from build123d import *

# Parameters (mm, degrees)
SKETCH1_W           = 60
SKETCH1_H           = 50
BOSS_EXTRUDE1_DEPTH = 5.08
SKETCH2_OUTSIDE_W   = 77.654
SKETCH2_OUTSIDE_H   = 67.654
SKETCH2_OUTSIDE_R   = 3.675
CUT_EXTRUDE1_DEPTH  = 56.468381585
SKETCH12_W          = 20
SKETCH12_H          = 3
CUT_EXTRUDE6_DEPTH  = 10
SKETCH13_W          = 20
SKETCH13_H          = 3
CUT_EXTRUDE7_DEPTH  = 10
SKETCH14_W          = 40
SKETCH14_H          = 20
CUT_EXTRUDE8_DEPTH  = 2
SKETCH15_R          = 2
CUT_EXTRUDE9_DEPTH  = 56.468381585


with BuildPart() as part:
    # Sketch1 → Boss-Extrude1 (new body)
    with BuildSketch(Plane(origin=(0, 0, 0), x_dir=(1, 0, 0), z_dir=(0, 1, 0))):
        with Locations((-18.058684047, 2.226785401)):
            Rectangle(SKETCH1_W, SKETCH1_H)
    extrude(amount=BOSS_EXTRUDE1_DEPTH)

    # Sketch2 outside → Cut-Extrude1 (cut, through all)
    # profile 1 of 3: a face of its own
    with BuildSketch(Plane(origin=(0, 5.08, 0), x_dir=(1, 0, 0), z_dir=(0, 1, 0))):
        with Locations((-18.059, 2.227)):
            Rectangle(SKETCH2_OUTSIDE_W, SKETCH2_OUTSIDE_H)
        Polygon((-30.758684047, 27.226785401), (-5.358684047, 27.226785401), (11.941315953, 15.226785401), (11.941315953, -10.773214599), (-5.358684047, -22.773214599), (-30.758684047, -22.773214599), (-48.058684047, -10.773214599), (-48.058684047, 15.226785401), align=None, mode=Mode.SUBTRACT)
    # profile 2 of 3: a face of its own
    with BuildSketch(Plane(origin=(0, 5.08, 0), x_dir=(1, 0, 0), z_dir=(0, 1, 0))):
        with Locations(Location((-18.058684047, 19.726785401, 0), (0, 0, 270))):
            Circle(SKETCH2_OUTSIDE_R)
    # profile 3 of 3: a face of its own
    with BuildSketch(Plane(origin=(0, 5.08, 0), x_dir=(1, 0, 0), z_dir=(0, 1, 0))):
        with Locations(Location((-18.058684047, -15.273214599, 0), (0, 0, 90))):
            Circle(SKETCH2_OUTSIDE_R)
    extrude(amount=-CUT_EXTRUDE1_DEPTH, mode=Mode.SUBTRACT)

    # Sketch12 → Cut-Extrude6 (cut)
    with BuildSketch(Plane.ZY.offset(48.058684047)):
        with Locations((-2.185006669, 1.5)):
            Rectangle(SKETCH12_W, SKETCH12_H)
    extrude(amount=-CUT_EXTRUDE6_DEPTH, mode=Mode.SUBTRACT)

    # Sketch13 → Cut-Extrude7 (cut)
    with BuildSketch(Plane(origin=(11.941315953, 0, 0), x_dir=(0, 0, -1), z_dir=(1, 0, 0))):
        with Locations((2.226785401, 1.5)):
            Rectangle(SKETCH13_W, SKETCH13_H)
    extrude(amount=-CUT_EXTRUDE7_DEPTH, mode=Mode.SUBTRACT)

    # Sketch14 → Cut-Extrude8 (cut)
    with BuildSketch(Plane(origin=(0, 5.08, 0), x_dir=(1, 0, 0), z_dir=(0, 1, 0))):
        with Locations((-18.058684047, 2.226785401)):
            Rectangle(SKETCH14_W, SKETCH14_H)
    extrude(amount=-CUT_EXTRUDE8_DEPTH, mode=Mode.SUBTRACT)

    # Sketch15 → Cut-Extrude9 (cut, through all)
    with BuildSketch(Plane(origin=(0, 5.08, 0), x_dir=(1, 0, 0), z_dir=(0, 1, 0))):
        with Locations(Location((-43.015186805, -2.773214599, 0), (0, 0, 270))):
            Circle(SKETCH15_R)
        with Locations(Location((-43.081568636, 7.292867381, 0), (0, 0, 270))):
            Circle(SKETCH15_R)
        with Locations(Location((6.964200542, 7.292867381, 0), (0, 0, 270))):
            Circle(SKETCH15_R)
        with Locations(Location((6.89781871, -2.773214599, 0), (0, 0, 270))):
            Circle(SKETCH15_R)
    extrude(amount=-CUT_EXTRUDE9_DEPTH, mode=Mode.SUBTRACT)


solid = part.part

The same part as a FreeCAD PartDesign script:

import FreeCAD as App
import Part
import Sketcher

doc = App.newDocument("Part")
body = doc.addObject("PartDesign::Body", "Body")

# Sketch on XZ plane
sketch1 = body.newObject("Sketcher::SketchObject", "Sketch")
sketch1.AttachmentSupport = (doc.getObject("XZ_Plane"), [""])
sketch1.MapMode = "FlatFace"
sketch1.addGeometry([
    Part.LineSegment(App.Vector(-48, -27, 0), App.Vector(-48, 23, 0)),
    Part.LineSegment(App.Vector(-48, 23, 0), App.Vector(12, 23, 0)),
    Part.LineSegment(App.Vector(12, 23, 0), App.Vector(12, -27, 0)),
    Part.LineSegment(App.Vector(12, -27, 0), App.Vector(-48, -27, 0)),
], False)
sketch1.addConstraint([
    Sketcher.Constraint("Coincident", 0, 2, 1, 1),
    Sketcher.Constraint("Coincident", 1, 2, 2, 1),
    Sketcher.Constraint("Coincident", 2, 2, 3, 1),
    Sketcher.Constraint("Coincident", 3, 2, 0, 1),
    Sketcher.Constraint("Vertical", 0),
    Sketcher.Constraint("Horizontal", 1),
    Sketcher.Constraint("Vertical", 2),
    Sketcher.Constraint("Horizontal", 3),
    Sketcher.Constraint("DistanceX", 1, 1, 1, 2, 60.0),
    Sketcher.Constraint("DistanceY", 0, 1, 0, 2, 50.0),
    Sketcher.Constraint("DistanceX", 0, 2, -1, 1, 48.058684),
    Sketcher.Constraint("DistanceY", -1, 1, 0, 2, 22.773215),
])
pad1 = body.newObject("PartDesign::Pad", "Pad")
pad1.Profile = sketch1
pad1.Length = 5.08
pad1.Reversed = True

# Sketch on XZ plane
sketch2 = body.newObject("Sketcher::SketchObject", "Sketch001")
sketch2.AttachmentSupport = (doc.getObject("XZ_Plane"), [""])
sketch2.MapMode = "FlatFace"
sketch2.AttachmentOffset = App.Placement(App.Vector(0, 0, -5.08), App.Rotation())
sketch2.addGeometry([
    Part.LineSegment(App.Vector(-56.9, -36.1, 0), App.Vector(-56.9, 31.6, 0)),  # 0
    Part.LineSegment(App.Vector(-56.9, 31.6, 0), App.Vector(20.8, 31.6, 0)),  # 1
    Part.LineSegment(App.Vector(20.8, 31.6, 0), App.Vector(20.8, -36.1, 0)),  # 2
    Part.LineSegment(App.Vector(20.8, -36.1, 0), App.Vector(-56.9, -36.1, 0)),  # 3
    Part.LineSegment(App.Vector(-48.1, -15.2, 0), App.Vector(-30.8, -27.2, 0)),  # 4
    Part.LineSegment(App.Vector(-30.8, -27.2, 0), App.Vector(-5.4, -27.2, 0)),  # 5
    Part.LineSegment(App.Vector(-5.4, -27.2, 0), App.Vector(11.9, -15.2, 0)),  # 6
    Part.LineSegment(App.Vector(11.9, -15.2, 0), App.Vector(11.9, 10.8, 0)),  # 7
    Part.LineSegment(App.Vector(11.9, 10.8, 0), App.Vector(-5.4, 22.8, 0)),  # 8
    Part.LineSegment(App.Vector(-5.4, 22.8, 0), App.Vector(-30.8, 22.8, 0)),  # 9
    Part.LineSegment(App.Vector(-30.8, 22.8, 0), App.Vector(-48.1, 10.8, 0)),  # 10
    Part.LineSegment(App.Vector(-48.1, 10.8, 0), App.Vector(-48.1, -15.2, 0)),  # 11
    Part.Circle(App.Vector(-18.1, -19.7, 0), App.Vector(0, 0, 1), 3.7),  # 12
    Part.Circle(App.Vector(-18.1, 15.3, 0), App.Vector(0, 0, 1), 3.7),  # 13
], False)
sketch2.addConstraint([
    Sketcher.Constraint("Coincident", 0, 2, 1, 1),
    Sketcher.Constraint("Coincident", 1, 2, 2, 1),
    Sketcher.Constraint("Coincident", 2, 2, 3, 1),
    Sketcher.Constraint("Coincident", 3, 2, 0, 1),
    Sketcher.Constraint("Coincident", 4, 2, 5, 1),
    Sketcher.Constraint("Coincident", 5, 2, 6, 1),
    Sketcher.Constraint("Coincident", 6, 2, 7, 1),
    Sketcher.Constraint("Coincident", 7, 2, 8, 1),
    Sketcher.Constraint("Coincident", 8, 2, 9, 1),
    Sketcher.Constraint("Coincident", 9, 2, 10, 1),
    Sketcher.Constraint("Coincident", 10, 2, 11, 1),
    Sketcher.Constraint("Coincident", 11, 2, 4, 1),
    Sketcher.Constraint("Vertical", 0),
    Sketcher.Constraint("Horizontal", 1),
    Sketcher.Constraint("Vertical", 2),
    Sketcher.Constraint("Horizontal", 3),
    Sketcher.Constraint("Horizontal", 5),
    Sketcher.Constraint("Vertical", 7),
    Sketcher.Constraint("Horizontal", 9),
    Sketcher.Constraint("Vertical", 11),
    Sketcher.Constraint("Equal", 12, 13),
    Sketcher.Constraint("Parallel", 4, 8),
    Sketcher.Constraint("Parallel", 6, 10),
    Sketcher.Constraint("Horizontal", 7, 2, 10, 2),
    Sketcher.Constraint("Horizontal", 6, 2, 11, 2),
    Sketcher.Constraint("Vertical", 12, 3, 13, 3),
    Sketcher.Constraint("Vertical", 5, 2, 8, 2),
    Sketcher.Constraint("Vertical", 4, 2, 9, 2),
    Sketcher.Constraint("Diameter", 12, 7.35),
    Sketcher.Constraint("DistanceY", 7, 1, 7, 2, 26.0),
    Sketcher.Constraint("DistanceX", 5, 1, 5, 2, 25.4),
    Sketcher.Constraint("DistanceY", 12, 3, 13, 3, 35.0),
    Sketcher.Constraint("DistanceY", 5, 2, 6, 2, 12.0),
    Sketcher.Constraint("DistanceX", 12, 3, 6, 2, 30.0),
    Sketcher.Constraint("DistanceX", 10, 2, 13, 3, 30.0),
    Sketcher.Constraint("DistanceY", -1, 1, 0, 2, 31.6),
    Sketcher.Constraint("DistanceY", 4, 2, 12, 3, 7.5),
    Sketcher.Constraint("DistanceX", 1, 1, 1, 2, 77.654),
    Sketcher.Constraint("DistanceY", 0, 1, 0, 2, 67.654),
    Sketcher.Constraint("DistanceX", 0, 2, -1, 1, 56.886),
    Sketcher.Constraint("DistanceX", 12, 3, -1, 1, 18.058684),
    Sketcher.Constraint("DistanceY", 12, 3, -1, 1, 19.726785),
])
pocket1 = body.newObject("PartDesign::Pocket", "Pocket")
pocket1.Profile = sketch2
pocket1.Length = 56.468382
pocket1.Reversed = True

# Sketch on YZ plane
sketch3 = body.newObject("Sketcher::SketchObject", "Sketch002")
sketch3.AttachmentSupport = (doc.getObject("YZ_Plane"), [""])
sketch3.MapMode = "FlatFace"
sketch3.AttachmentOffset = App.Placement(App.Vector(0, 0, -48.058684), App.Rotation())
sketch3.addGeometry([
    Part.LineSegment(App.Vector(3, -12.2, 0), App.Vector(0, -12.2, 0)),
    Part.LineSegment(App.Vector(0, -12.2, 0), App.Vector(0, 7.8, 0)),
    Part.LineSegment(App.Vector(0, 7.8, 0), App.Vector(3, 7.8, 0)),
    Part.LineSegment(App.Vector(3, 7.8, 0), App.Vector(3, -12.2, 0)),
], False)
sketch3.addConstraint([
    Sketcher.Constraint("Coincident", 0, 2, 1, 1),
    Sketcher.Constraint("Coincident", 1, 2, 2, 1),
    Sketcher.Constraint("Coincident", 2, 2, 3, 1),
    Sketcher.Constraint("Coincident", 3, 2, 0, 1),
    Sketcher.Constraint("Horizontal", 0),
    Sketcher.Constraint("Vertical", 1),
    Sketcher.Constraint("Horizontal", 2),
    Sketcher.Constraint("Vertical", 3),
    Sketcher.Constraint("PointOnObject", 0, 2, -2),
    Sketcher.Constraint("DistanceX", 0, 2, 0, 1, 3.0),
    Sketcher.Constraint("DistanceY", 1, 1, 1, 2, 20.0),
    Sketcher.Constraint("DistanceY", 0, 2, -1, 1, 12.185007),
])
pocket2 = body.newObject("PartDesign::Pocket", "Pocket001")
pocket2.Profile = sketch3
pocket2.Length = 10
pocket2.Reversed = True

# Sketch on YZ plane
sketch4 = body.newObject("Sketcher::SketchObject", "Sketch003")
sketch4.AttachmentSupport = (doc.getObject("YZ_Plane"), [""])
sketch4.MapMode = "FlatFace"
sketch4.AttachmentOffset = App.Placement(App.Vector(0, 0, 11.941316), App.Rotation())
sketch4.addGeometry([
    Part.LineSegment(App.Vector(3, 7.8, 0), App.Vector(0, 7.8, 0)),
    Part.LineSegment(App.Vector(0, 7.8, 0), App.Vector(0, -12.2, 0)),
    Part.LineSegment(App.Vector(0, -12.2, 0), App.Vector(3, -12.2, 0)),
    Part.LineSegment(App.Vector(3, -12.2, 0), App.Vector(3, 7.8, 0)),
], False)
sketch4.addConstraint([
    Sketcher.Constraint("Coincident", 0, 2, 1, 1),
    Sketcher.Constraint("Coincident", 1, 2, 2, 1),
    Sketcher.Constraint("Coincident", 2, 2, 3, 1),
    Sketcher.Constraint("Coincident", 3, 2, 0, 1),
    Sketcher.Constraint("Horizontal", 0),
    Sketcher.Constraint("Vertical", 1),
    Sketcher.Constraint("Horizontal", 2),
    Sketcher.Constraint("Vertical", 3),
    Sketcher.Constraint("PointOnObject", 0, 2, -2),
    Sketcher.Constraint("DistanceX", 0, 2, 0, 1, 3.0),
    Sketcher.Constraint("DistanceY", 1, 2, 1, 1, 20.0),
    Sketcher.Constraint("DistanceY", -1, 1, 0, 2, 7.773215),
])
pocket3 = body.newObject("PartDesign::Pocket", "Pocket002")
pocket3.Profile = sketch4
pocket3.Length = 10

# Sketch on XZ plane
sketch5 = body.newObject("Sketcher::SketchObject", "Sketch004")
sketch5.AttachmentSupport = (doc.getObject("XZ_Plane"), [""])
sketch5.MapMode = "FlatFace"
sketch5.AttachmentOffset = App.Placement(App.Vector(0, 0, -5.08), App.Rotation())
sketch5.addGeometry([
    Part.LineSegment(App.Vector(-38, -12, 0), App.Vector(-38, 8, 0)),
    Part.LineSegment(App.Vector(-38, 8, 0), App.Vector(2, 8, 0)),
    Part.LineSegment(App.Vector(2, 8, 0), App.Vector(2, -12, 0)),
    Part.LineSegment(App.Vector(2, -12, 0), App.Vector(-38, -12, 0)),
], False)
sketch5.addConstraint([
    Sketcher.Constraint("Coincident", 0, 2, 1, 1),
    Sketcher.Constraint("Coincident", 1, 2, 2, 1),
    Sketcher.Constraint("Coincident", 2, 2, 3, 1),
    Sketcher.Constraint("Coincident", 3, 2, 0, 1),
    Sketcher.Constraint("Vertical", 0),
    Sketcher.Constraint("Horizontal", 1),
    Sketcher.Constraint("Vertical", 2),
    Sketcher.Constraint("Horizontal", 3),
    Sketcher.Constraint("DistanceX", 1, 1, 1, 2, 40.0),
    Sketcher.Constraint("DistanceY", 0, 1, 0, 2, 20.0),
    Sketcher.Constraint("DistanceX", 0, 2, -1, 1, 38.058684),
    Sketcher.Constraint("DistanceY", -1, 1, 0, 2, 7.773215),
])
pocket4 = body.newObject("PartDesign::Pocket", "Pocket003")
pocket4.Profile = sketch5
pocket4.Length = 2
pocket4.Reversed = True

# Sketch on XZ plane
sketch6 = body.newObject("Sketcher::SketchObject", "Sketch005")
sketch6.AttachmentSupport = (doc.getObject("XZ_Plane"), [""])
sketch6.MapMode = "FlatFace"
sketch6.AttachmentOffset = App.Placement(App.Vector(0, 0, -5.08), App.Rotation())
sketch6.addGeometry([
    Part.Circle(App.Vector(-43, 2.8, 0), App.Vector(0, 0, 1), 2),
    Part.Circle(App.Vector(-43.1, -7.3, 0), App.Vector(0, 0, 1), 2),
    Part.Circle(App.Vector(7, -7.3, 0), App.Vector(0, 0, 1), 2),
    Part.Circle(App.Vector(6.9, 2.8, 0), App.Vector(0, 0, 1), 2),
], False)
sketch6.addConstraint([
    Sketcher.Constraint("Equal", 0, 1),
    Sketcher.Constraint("Equal", 1, 2),
    Sketcher.Constraint("Equal", 2, 3),
    Sketcher.Constraint("Horizontal", 1, 3, 2, 3),
    Sketcher.Constraint("Horizontal", 0, 3, 3, 3),
    Sketcher.Constraint("Diameter", 0, 4.0),
    Sketcher.Constraint("DistanceX", -1, 1, 2, 3, 6.964201),
    Sketcher.Constraint("DistanceX", 1, 3, -1, 1, 43.081569),
    Sketcher.Constraint("DistanceX", -1, 1, 3, 3, 6.897819),
    Sketcher.Constraint("DistanceX", 1, 3, 0, 3, 0.066382),
    Sketcher.Constraint("DistanceY", 1, 3, 0, 3, 10.066082),
    Sketcher.Constraint("DistanceY", -1, 1, 0, 3, 2.773215),
])
pocket5 = body.newObject("PartDesign::Pocket", "Pocket004")
pocket5.Profile = sketch6
pocket5.Type = "ThroughAll"
pocket5.Reversed = True

doc.recompute()
